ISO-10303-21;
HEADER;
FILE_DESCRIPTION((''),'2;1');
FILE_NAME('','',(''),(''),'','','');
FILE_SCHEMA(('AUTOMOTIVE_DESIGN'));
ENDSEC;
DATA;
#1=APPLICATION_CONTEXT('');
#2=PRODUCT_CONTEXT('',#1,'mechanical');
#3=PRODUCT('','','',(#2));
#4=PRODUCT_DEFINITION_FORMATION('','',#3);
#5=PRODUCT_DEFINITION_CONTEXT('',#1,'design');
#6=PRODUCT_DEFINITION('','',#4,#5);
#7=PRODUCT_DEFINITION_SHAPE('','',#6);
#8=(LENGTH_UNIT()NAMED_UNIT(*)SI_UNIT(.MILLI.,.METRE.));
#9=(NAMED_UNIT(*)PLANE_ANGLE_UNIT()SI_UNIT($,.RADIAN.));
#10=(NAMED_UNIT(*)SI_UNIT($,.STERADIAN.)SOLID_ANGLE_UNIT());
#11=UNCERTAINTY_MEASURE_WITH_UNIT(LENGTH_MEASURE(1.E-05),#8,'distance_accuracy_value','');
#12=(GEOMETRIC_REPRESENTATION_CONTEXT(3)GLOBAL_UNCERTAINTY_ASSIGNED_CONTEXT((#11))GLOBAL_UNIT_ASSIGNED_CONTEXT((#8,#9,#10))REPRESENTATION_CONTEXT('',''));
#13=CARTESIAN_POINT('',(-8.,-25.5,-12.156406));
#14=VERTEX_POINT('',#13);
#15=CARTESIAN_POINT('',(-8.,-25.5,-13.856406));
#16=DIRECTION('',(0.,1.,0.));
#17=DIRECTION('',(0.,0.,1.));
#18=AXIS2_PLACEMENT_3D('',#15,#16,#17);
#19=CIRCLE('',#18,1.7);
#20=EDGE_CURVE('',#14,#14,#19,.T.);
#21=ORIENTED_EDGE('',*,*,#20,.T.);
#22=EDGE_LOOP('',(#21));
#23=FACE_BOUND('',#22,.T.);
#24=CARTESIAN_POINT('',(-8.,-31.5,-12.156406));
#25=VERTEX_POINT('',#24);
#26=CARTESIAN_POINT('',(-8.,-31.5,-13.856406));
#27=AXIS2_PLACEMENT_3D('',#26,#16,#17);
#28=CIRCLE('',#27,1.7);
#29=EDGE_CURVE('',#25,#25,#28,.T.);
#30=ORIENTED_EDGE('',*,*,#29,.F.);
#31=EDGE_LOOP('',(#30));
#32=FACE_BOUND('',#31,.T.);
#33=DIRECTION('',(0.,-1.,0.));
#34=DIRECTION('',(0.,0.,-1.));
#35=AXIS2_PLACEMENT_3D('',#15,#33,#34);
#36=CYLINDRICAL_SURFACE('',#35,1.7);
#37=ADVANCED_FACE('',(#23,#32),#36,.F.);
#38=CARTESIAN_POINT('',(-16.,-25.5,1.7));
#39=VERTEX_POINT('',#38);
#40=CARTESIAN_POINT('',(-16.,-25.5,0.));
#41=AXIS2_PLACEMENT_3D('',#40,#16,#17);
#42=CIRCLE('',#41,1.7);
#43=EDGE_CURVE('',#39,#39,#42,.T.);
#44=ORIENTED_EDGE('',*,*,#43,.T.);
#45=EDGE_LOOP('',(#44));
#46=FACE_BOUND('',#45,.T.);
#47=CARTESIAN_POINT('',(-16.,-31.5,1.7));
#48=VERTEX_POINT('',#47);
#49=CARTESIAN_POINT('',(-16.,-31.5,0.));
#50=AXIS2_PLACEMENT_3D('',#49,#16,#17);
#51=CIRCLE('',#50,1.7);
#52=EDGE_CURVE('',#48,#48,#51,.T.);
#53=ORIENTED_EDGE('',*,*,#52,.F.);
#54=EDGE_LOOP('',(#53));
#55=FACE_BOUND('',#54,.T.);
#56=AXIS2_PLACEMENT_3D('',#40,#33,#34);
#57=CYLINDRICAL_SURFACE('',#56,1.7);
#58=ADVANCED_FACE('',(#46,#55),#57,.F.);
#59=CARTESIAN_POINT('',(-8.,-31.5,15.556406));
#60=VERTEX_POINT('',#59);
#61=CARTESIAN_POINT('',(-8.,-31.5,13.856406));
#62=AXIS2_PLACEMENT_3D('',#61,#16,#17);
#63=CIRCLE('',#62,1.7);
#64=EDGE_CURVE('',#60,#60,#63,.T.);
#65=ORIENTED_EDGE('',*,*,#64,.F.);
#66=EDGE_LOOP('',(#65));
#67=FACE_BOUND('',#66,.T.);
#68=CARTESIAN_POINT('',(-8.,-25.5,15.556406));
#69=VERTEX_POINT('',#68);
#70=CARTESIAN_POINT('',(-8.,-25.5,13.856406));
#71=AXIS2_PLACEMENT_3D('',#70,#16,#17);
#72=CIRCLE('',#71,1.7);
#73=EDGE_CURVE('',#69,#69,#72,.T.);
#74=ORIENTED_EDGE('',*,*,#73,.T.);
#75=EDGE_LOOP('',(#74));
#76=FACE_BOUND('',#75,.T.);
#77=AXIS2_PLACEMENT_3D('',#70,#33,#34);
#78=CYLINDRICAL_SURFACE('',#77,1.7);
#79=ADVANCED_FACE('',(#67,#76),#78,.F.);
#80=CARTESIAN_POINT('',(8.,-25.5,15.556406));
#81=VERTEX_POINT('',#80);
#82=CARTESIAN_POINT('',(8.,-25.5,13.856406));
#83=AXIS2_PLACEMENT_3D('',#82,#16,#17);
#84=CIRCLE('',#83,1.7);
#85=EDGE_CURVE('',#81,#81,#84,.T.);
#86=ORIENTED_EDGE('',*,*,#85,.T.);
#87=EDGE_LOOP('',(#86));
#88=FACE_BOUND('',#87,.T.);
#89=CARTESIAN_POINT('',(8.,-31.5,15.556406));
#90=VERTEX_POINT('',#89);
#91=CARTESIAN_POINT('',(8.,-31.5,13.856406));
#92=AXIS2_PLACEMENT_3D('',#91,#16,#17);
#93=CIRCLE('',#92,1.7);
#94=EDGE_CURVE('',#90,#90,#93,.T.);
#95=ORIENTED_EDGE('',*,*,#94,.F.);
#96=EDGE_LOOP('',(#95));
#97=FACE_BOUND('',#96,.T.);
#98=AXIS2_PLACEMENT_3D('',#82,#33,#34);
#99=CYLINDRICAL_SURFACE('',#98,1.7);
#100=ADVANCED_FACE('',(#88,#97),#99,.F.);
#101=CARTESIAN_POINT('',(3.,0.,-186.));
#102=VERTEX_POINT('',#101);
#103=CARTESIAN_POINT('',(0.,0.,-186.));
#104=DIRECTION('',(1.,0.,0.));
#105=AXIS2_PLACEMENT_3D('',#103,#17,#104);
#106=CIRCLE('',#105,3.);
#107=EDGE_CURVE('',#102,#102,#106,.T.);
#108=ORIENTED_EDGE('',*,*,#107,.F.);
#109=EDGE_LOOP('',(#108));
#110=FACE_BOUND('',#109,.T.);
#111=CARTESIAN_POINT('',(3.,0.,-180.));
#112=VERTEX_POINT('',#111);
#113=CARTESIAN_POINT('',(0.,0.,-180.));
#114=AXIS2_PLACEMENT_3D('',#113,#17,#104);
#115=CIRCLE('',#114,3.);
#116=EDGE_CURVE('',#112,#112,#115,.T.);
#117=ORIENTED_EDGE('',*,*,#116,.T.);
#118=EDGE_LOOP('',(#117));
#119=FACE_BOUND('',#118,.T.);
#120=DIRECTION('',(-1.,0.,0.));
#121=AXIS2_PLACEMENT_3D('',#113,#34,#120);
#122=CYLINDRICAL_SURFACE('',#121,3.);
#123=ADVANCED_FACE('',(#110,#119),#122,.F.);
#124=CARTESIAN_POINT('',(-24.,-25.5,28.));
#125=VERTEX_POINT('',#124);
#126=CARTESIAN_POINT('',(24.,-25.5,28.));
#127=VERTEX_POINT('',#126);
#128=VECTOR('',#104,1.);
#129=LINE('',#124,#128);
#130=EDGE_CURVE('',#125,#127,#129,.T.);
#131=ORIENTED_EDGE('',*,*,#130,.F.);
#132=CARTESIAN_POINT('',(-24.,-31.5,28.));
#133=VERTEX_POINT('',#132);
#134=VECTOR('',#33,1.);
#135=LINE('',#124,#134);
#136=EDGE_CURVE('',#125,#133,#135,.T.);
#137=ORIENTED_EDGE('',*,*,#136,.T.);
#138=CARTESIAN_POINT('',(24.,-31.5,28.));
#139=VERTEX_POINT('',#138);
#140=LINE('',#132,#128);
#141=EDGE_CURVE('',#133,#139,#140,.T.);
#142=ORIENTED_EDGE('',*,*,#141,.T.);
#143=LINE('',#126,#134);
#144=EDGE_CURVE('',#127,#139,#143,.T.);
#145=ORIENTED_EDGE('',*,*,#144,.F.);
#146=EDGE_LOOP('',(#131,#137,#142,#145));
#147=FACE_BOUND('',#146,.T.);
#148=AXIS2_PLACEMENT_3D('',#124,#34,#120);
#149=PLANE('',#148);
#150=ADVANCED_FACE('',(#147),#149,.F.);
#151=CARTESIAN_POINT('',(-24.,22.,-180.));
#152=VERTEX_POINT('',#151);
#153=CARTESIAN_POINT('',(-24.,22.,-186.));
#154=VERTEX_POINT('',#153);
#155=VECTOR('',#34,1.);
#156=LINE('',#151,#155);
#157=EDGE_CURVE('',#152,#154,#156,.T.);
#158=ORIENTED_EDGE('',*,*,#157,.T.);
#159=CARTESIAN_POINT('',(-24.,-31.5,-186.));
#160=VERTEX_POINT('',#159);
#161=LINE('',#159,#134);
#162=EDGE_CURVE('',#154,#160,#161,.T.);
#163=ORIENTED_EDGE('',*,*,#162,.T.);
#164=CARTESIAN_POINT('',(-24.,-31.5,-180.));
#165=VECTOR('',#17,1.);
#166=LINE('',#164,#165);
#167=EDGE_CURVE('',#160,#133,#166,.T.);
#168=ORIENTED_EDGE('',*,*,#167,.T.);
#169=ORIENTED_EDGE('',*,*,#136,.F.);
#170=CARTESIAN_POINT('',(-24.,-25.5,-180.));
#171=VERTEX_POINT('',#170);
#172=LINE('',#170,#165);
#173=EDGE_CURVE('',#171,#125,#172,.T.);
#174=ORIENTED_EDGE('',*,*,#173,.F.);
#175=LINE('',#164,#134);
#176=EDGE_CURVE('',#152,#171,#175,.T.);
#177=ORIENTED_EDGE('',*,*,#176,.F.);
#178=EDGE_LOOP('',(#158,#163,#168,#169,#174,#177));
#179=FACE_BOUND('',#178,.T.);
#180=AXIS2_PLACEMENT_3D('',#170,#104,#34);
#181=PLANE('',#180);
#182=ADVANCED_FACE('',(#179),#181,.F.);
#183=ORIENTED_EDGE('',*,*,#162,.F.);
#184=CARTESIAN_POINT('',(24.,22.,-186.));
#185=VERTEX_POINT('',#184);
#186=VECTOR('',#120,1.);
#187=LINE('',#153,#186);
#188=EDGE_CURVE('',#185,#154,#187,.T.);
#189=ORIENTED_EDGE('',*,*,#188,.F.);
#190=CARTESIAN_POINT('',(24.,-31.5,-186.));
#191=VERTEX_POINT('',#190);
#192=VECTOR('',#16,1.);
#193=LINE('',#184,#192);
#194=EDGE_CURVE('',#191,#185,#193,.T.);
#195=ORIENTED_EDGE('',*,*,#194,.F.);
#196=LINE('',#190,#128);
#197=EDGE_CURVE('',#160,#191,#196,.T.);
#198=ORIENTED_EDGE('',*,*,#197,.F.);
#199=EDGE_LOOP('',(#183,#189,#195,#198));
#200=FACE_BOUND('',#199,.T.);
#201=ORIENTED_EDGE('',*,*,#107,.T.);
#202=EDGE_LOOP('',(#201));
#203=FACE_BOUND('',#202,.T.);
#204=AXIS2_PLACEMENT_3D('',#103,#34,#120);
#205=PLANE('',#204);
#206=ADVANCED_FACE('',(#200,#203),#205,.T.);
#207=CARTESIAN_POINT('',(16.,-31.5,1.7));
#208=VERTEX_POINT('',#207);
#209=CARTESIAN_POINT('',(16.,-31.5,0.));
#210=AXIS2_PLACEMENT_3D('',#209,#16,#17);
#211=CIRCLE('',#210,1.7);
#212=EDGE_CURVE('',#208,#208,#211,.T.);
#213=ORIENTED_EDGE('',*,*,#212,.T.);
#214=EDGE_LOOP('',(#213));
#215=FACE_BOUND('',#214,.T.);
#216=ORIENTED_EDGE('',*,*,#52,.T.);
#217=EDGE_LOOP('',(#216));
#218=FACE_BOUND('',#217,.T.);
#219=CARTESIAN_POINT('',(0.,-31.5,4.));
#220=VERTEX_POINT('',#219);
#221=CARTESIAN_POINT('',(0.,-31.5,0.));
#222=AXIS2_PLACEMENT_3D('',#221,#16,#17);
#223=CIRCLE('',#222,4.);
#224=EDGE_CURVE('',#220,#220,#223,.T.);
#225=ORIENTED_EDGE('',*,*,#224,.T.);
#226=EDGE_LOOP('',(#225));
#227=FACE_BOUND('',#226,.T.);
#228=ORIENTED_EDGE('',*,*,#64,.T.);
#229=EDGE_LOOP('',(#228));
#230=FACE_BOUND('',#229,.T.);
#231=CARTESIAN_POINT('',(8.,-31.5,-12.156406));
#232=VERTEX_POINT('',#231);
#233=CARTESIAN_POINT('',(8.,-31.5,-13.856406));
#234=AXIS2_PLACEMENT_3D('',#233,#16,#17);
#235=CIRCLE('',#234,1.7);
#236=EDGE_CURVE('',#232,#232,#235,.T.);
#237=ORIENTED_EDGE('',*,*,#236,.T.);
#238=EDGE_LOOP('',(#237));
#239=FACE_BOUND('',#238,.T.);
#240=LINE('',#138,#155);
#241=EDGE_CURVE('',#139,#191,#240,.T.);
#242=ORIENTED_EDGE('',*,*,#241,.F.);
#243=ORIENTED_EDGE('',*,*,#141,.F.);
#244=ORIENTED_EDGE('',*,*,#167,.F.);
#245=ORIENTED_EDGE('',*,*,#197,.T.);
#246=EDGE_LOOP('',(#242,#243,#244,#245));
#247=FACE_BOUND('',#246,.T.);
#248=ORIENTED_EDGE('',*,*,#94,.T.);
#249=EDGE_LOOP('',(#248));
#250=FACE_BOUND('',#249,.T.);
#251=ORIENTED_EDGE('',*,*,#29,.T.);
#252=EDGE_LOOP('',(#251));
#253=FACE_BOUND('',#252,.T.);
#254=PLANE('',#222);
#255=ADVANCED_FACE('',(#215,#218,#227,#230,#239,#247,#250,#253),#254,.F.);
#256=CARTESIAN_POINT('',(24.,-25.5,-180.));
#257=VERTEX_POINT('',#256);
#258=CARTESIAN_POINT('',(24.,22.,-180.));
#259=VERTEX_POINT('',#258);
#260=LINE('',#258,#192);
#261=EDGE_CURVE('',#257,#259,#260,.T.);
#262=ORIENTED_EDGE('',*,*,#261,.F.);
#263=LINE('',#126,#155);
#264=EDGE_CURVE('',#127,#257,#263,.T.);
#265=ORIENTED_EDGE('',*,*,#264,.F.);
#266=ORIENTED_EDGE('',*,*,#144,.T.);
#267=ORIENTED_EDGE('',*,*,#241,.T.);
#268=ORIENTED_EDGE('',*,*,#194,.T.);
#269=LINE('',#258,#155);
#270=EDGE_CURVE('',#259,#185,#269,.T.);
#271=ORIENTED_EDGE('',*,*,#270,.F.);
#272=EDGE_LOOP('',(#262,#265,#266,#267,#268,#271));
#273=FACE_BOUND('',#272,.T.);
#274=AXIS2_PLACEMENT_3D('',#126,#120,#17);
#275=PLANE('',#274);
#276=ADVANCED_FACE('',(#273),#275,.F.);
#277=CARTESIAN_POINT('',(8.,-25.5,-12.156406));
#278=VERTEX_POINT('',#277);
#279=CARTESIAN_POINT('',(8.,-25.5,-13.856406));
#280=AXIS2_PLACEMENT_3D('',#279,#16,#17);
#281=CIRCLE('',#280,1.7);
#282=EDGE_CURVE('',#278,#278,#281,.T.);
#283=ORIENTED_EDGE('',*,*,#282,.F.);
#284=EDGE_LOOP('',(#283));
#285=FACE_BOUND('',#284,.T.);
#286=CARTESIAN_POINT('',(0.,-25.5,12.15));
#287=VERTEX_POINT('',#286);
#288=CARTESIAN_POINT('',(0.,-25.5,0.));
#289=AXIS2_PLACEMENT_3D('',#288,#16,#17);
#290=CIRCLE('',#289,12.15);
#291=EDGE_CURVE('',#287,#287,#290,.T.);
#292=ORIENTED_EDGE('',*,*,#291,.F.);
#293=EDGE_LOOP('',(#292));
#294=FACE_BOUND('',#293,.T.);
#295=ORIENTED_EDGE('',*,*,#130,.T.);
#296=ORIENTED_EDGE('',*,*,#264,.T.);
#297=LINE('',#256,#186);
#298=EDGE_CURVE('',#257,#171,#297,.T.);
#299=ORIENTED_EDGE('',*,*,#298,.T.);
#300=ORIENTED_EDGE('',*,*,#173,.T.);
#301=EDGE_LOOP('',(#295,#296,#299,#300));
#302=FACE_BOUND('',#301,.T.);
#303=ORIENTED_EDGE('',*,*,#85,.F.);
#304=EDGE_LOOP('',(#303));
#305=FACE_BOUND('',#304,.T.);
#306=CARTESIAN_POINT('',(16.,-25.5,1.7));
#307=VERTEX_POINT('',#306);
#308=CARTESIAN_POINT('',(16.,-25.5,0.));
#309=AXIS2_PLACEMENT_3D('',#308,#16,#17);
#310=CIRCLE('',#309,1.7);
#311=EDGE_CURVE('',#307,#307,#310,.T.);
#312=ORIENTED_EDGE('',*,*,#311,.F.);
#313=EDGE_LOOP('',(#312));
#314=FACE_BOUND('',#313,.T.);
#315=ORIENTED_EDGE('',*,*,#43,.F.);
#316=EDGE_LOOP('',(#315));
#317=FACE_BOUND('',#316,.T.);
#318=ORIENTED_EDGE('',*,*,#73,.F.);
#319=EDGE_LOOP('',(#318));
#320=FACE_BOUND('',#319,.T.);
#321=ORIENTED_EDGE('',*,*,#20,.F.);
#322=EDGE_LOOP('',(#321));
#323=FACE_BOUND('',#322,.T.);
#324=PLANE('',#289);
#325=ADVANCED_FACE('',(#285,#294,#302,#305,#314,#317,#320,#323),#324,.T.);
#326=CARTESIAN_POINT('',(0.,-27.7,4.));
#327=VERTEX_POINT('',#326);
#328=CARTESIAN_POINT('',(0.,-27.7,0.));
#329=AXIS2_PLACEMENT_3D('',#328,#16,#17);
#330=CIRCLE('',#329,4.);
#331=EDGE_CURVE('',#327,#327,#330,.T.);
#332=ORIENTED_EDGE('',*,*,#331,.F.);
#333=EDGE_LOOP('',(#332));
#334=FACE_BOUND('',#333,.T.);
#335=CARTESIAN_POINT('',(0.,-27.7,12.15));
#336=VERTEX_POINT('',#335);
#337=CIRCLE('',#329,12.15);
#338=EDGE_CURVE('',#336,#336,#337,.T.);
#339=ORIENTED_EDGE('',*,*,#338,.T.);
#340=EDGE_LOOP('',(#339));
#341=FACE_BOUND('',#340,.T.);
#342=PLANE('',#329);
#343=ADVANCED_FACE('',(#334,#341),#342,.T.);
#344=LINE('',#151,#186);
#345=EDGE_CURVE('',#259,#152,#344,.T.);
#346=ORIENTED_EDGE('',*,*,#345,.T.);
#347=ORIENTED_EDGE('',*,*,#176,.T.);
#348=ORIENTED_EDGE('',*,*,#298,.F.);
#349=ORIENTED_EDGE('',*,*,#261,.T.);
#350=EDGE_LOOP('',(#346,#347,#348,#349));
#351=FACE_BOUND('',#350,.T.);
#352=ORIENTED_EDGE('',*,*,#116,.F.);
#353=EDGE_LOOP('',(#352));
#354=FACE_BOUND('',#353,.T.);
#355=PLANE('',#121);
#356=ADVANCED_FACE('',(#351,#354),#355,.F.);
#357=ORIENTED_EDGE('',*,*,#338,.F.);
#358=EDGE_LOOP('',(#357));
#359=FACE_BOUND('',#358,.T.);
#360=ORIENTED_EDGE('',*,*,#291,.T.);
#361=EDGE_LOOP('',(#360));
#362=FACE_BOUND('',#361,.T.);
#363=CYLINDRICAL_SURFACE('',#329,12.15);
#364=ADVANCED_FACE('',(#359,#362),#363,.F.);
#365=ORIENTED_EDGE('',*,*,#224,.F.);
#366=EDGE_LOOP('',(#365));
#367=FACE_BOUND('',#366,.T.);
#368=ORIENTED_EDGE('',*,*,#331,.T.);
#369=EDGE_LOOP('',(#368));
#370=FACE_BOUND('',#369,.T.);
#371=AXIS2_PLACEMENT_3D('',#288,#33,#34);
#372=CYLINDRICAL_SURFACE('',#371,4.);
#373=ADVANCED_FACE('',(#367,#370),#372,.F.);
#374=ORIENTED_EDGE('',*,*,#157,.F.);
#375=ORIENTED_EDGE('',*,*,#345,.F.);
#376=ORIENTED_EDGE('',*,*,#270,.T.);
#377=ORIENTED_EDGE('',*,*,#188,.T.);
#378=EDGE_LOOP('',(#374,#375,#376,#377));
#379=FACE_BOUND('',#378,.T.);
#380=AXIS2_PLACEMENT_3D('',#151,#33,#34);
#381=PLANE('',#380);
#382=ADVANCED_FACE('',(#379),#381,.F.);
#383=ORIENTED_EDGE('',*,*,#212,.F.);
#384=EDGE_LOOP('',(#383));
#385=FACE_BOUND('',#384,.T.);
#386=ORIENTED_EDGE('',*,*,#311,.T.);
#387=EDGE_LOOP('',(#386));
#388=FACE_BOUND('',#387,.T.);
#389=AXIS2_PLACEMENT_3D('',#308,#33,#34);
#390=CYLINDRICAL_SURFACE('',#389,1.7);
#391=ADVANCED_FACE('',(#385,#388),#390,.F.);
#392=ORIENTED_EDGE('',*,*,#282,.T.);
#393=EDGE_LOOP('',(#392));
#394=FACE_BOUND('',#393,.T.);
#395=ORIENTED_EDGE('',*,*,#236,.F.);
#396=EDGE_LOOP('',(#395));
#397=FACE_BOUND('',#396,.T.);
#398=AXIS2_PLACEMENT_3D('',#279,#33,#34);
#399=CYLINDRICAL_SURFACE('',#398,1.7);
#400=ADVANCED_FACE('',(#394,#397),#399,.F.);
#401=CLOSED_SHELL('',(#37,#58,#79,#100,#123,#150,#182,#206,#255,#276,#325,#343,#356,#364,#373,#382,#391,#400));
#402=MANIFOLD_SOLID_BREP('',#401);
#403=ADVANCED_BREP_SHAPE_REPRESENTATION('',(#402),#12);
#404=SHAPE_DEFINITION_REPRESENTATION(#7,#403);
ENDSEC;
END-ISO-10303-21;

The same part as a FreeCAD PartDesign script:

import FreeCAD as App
import Part
import Sketcher


def add_polygon(sketch, points):
    """Adds a closed chain of lines whose ends are joined by coincident constraints."""
    first, n = sketch.GeometryCount, len(points)
    for a, b in zip(points, points[1:] + points[:1]):
        sketch.addGeometry(Part.LineSegment(App.Vector(*a, 0), App.Vector(*b, 0)), False)
    for i in range(n):
        sketch.addConstraint(Sketcher.Constraint("Coincident", first + i, 2, first + (i + 1) % n, 1))

doc = App.newDocument("Part")
body = doc.addObject("PartDesign::Body", "Body")

# Sketch on XZ plane
sketch1 = doc.addObject("Sketcher::SketchObject", "Sketch")
body.addObject(sketch1)
sketch1.AttachmentSupport = (doc.XZ_Plane, [""])
sketch1.MapMode = "FlatFace"
sketch1.AttachmentOffset = App.Placement(App.Vector(0, 0, 31.5), App.Rotation())
add_polygon(sketch1, [(-24, -180), (-24, 28), (24, 28), (24, -180)])  # lines 0-3
sketch1.addGeometry(Part.Circle(App.Vector(-8, 13.856406, 0), App.Vector(0, 0, 1), 1.7), False)  # 4
sketch1.addGeometry(Part.Circle(App.Vector(8, 13.856406, 0), App.Vector(0, 0, 1), 1.7), False)  # 5
sketch1.addGeometry(Part.Circle(App.Vector(-16, 0, 0), App.Vector(0, 0, 1), 1.7), False)  # 6
sketch1.addGeometry(Part.Circle(App.Vector(-8, -13.856406, 0), App.Vector(0, 0, 1), 1.7), False)  # 7
sketch1.addGeometry(Part.Circle(App.Vector(0, 0, 0), App.Vector(0, 0, 1), 4), False)  # 8
sketch1.addGeometry(Part.Circle(App.Vector(16, 0, 0), App.Vector(0, 0, 1), 1.7), False)  # 9
sketch1.addGeometry(Part.Circle(App.Vector(8, -13.856406, 0), App.Vector(0, 0, 1), 1.7), False)  # 10
sketch1.addConstraint([
    Sketcher.Constraint("Vertical", 0),
    Sketcher.Constraint("Horizontal", 1),
    Sketcher.Constraint("Vertical", 2),
    Sketcher.Constraint("Horizontal", 3),
    Sketcher.Constraint("Coincident", 8, 3, -1, 1),
    Sketcher.Constraint("Equal", 4, 5),
    Sketcher.Constraint("Equal", 5, 6),
    Sketcher.Constraint("Equal", 6, 7),
    Sketcher.Constraint("Equal", 7, 9),
    Sketcher.Constraint("Equal", 9, 10),
    Sketcher.Constraint("Symmetric", 5, 3, 7, 3, -1, 1),
    Sketcher.Constraint("Symmetric", 6, 3, 9, 3, -1, 1),
    Sketcher.Constraint("Symmetric", 4, 3, 10, 3, -1, 1),
    Sketcher.Constraint("Symmetric", 4, 3, 5, 3, -2),
    Sketcher.Constraint("PointOnObject", 6, 3, -1),
    Sketcher.Constraint("Diameter", 8, 8.0),
    Sketcher.Constraint("Diameter", 4, 3.4),
    Sketcher.Constraint("DistanceX", 1, 1, 1, 2, 48.0),
    Sketcher.Constraint("DistanceY", 0, 1, 0, 2, 208.0),
    Sketcher.Constraint("DistanceX", 4, 3, -1, 1, 8.0),
    Sketcher.Constraint("DistanceX", 6, 3, -1, 1, 16.0),
    Sketcher.Constraint("DistanceX", 0, 2, -1, 1, 24.0),
    Sketcher.Constraint("DistanceY", -1, 1, 0, 2, 28.0),
    Sketcher.Constraint("DistanceY", -1, 1, 4, 3, 13.856406),
])
pad1 = doc.addObject("PartDesign::Pad", "Pad")
body.addObject(pad1)
pad1.Profile = sketch1
pad1.Length = 6
pad1.Reversed = True

# Sketch on XZ plane
sketch2 = doc.addObject("Sketcher::SketchObject", "Sketch001")
body.addObject(sketch2)
sketch2.AttachmentSupport = (doc.XZ_Plane, [""])
sketch2.MapMode = "FlatFace"
sketch2.AttachmentOffset = App.Placement(App.Vector(0, 0, 25.5), App.Rotation())
sketch2.addGeometry(Part.Circle(App.Vector(0, 0, 0), App.Vector(0, 0, 1), 12.15), False)
sketch2.addConstraint([
    Sketcher.Constraint("Coincident", 0, 3, -1, 1),
    Sketcher.Constraint("Diameter", 0, 24.3),
])
pocket1 = doc.addObject("PartDesign::Pocket", "Pocket")
body.addObject(pocket1)
pocket1.Profile = sketch2
pocket1.Length = 2.2
pocket1.Reversed = True

# Sketch on XY plane
sketch3 = doc.addObject("Sketcher::SketchObject", "Sketch002")
body.addObject(sketch3)
sketch3.AttachmentSupport = (doc.XY_Plane, [""])
sketch3.MapMode = "FlatFace"
sketch3.AttachmentOffset = App.Placement(App.Vector(0, 0, -186), App.Rotation())
add_polygon(sketch3, [(-24, 22), (-24, -31.5), (24, -31.5), (24, 22)])  # lines 0-3
sketch3.addGeometry(Part.Circle(App.Vector(0, 0, 0), App.Vector(0, 0, 1), 3), False)  # 4
sketch3.addConstraint([
    Sketcher.Constraint("Vertical", 0),
    Sketcher.Constraint("Horizontal", 1),
    Sketcher.Constraint("Vertical", 2),
    Sketcher.Constraint("Horizontal", 3),
    Sketcher.Constraint("Coincident", 4, 3, -1, 1),
    Sketcher.Constraint("Diameter", 4, 6.0),
    Sketcher.Constraint("DistanceX", 1, 1, 1, 2, 48.0),
    Sketcher.Constraint("DistanceY", 0, 2, 0, 1, 53.5),
    Sketcher.Constraint("DistanceX", 0, 2, -1, 1, 24.0),
    Sketcher.Constraint("DistanceY", -1, 1, 2, 2, 22.0),
])
pad2 = doc.addObject("PartDesign::Pad", "Pad001")
body.addObject(pad2)
pad2.Profile = sketch3
pad2.Length = 6

doc.recompute()
